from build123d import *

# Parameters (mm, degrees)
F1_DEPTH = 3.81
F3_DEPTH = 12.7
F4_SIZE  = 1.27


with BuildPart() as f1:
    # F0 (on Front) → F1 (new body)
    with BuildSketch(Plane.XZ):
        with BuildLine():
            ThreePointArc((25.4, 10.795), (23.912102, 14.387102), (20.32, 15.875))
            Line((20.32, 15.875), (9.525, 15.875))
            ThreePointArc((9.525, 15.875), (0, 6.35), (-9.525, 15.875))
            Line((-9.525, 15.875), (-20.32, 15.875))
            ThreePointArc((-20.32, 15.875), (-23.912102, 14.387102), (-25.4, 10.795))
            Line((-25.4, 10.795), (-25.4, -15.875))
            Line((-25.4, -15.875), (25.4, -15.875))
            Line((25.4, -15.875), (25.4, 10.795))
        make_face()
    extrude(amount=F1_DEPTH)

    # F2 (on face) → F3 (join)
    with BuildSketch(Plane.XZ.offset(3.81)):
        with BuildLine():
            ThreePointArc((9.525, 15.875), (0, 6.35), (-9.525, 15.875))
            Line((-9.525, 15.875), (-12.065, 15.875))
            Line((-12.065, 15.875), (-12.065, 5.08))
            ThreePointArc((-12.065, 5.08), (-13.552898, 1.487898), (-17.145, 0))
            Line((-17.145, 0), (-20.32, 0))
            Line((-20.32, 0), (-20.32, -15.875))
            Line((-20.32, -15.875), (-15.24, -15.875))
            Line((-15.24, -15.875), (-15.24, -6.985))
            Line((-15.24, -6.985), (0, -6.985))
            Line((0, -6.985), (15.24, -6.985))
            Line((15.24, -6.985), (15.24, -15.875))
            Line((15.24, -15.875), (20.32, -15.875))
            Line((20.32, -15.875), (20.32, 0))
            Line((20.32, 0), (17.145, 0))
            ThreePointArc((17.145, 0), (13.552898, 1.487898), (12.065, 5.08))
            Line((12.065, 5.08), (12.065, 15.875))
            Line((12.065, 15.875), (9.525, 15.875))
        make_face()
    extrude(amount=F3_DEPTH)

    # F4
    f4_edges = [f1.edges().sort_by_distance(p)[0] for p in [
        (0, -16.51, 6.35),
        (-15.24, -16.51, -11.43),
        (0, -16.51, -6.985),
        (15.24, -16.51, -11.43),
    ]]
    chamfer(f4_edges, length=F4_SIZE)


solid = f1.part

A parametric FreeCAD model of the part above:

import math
import FreeCAD as App
import Part
import Sketcher
from FreeCAD import Vector
Q = App.Units.Quantity


def edges_at(feature, points):
    """Names of the edges that pass closest to the given points."""
    edges = feature.Shape.Edges
    near = lambda p: min(range(len(edges)), key=lambda i: edges[i].distToShape(Part.Vertex(*p))[0])
    return sorted({f"Edge{near(p) + 1}" for p in points})

doc = App.newDocument("Part")
body = doc.addObject("PartDesign::Body", "Body")

sketch1 = doc.addObject("Sketcher::SketchObject", "Sketch")
body.addObject(sketch1)
sketch1.AttachmentSupport = (doc.XZ_Plane, [""])
sketch1.MapMode = "FlatFace"
sketch1.addGeometry(Part.ArcOfCircle(Part.Circle(Vector(20, 11, 0), Vector(0, 0, 1), 5), math.radians(0), math.radians(90)), False)
sketch1.addGeometry(Part.LineSegment(Vector(20, 16, 0), Vector(10, 16, 0)), False)
sketch1.addGeometry(Part.ArcOfCircle(Part.Circle(Vector(0, 16, 0), Vector(0, 0, 1), 10), math.radians(180), math.radians(360)), False)
sketch1.addGeometry(Part.LineSegment(Vector(-10, 16, 0), Vector(-20, 16, 0)), False)
sketch1.addGeometry(Part.ArcOfCircle(Part.Circle(Vector(-20, 11, 0), Vector(0, 0, 1), 5), math.radians(90), math.radians(180)), False)
sketch1.addGeometry(Part.LineSegment(Vector(-25, 11, 0), Vector(-25, -16, 0)), False)
sketch1.addGeometry(Part.LineSegment(Vector(-25, -16, 0), Vector(25, -16, 0)), False)
sketch1.addGeometry(Part.LineSegment(Vector(25, -16, 0), Vector(25, 11, 0)), False)
sketch1.addConstraint(Sketcher.Constraint("Tangent", 0, 2, 1, 1))
sketch1.addConstraint(Sketcher.Constraint("Coincident", 1, 2, 2, 2))
sketch1.addConstraint(Sketcher.Constraint("Coincident", 2, 1, 3, 1))
sketch1.addConstraint(Sketcher.Constraint("Tangent", 3, 2, 4, 1))
sketch1.addConstraint(Sketcher.Constraint("Tangent", 4, 2, 5, 1))
sketch1.addConstraint(Sketcher.Constraint("Coincident", 5, 2, 6, 1))
sketch1.addConstraint(Sketcher.Constraint("Coincident", 6, 2, 7, 1))
sketch1.addConstraint(Sketcher.Constraint("Tangent", 7, 2, 0, 1))
sketch1.addConstraint(Sketcher.Constraint("Horizontal", 1))
sketch1.addConstraint(Sketcher.Constraint("Horizontal", 3))
sketch1.addConstraint(Sketcher.Constraint("Vertical", 5))
sketch1.addConstraint(Sketcher.Constraint("Horizontal", 6))
sketch1.addConstraint(Sketcher.Constraint("Vertical", 7))
sketch1.addConstraint(Sketcher.Constraint("Equal", 0, 4))
sketch1.addConstraint(Sketcher.Constraint("Symmetric", 0, 3, 4, 3, -2))
sketch1.addConstraint(Sketcher.Constraint("PointOnObject", 2, 3, -2))
sketch1.addConstraint(Sketcher.Constraint("Horizontal", 2, 3, 0, 2))
sketch1.addConstraint(Sketcher.Constraint("Radius", 0, Q("0.2000001 in")))
sketch1.addConstraint(Sketcher.Constraint("DistanceX", 6, 1, 6, 2, Q("2 in")))
sketch1.addConstraint(Sketcher.Constraint("Radius", 2, Q("0.375 in")))
sketch1.addConstraint(Sketcher.Constraint("DistanceY", 5, 2, 5, 1, Q("1.05 in")))
sketch1.addConstraint(Sketcher.Constraint("DistanceY", -1, 1, 0, 3, Q("0.4249999 in")))
pad1 = doc.addObject("PartDesign::Pad", "Pad")
body.addObject(pad1)
pad1.Profile = sketch1
pad1.Length = Q("0.15 in")

sketch2 = doc.addObject("Sketcher::SketchObject", "Sketch001")
body.addObject(sketch2)
sketch2.AttachmentSupport = (doc.XZ_Plane, [""])
sketch2.MapMode = "FlatFace"
sketch2.AttachmentOffset = App.Placement(Vector(0, 0, 0.15 * 25.4), App.Rotation())
sketch2.addGeometry(Part.ArcOfCircle(Part.Circle(Vector(0, 15.9, 0), Vector(0, 0, 1), 9.5), math.radians(180), math.radians(360)), False)
sketch2.addGeometry(Part.LineSegment(Vector(-9.5, 15.9, 0), Vector(-12.1, 15.9, 0)), False)
sketch2.addGeometry(Part.LineSegment(Vector(-12.1, 15.9, 0), Vector(-12.1, 5.1, 0)), False)
sketch2.addGeometry(Part.ArcOfCircle(Part.Circle(Vector(-17.1, 5.1, 0), Vector(0, 0, 1), 5.1), math.radians(-90), math.radians(0)), False)
sketch2.addGeometry(Part.LineSegment(Vector(-17.1, 0, 0), Vector(-20.3, 0, 0)), False)
sketch2.addGeometry(Part.LineSegment(Vector(-20.3, 0, 0), Vector(-20.3, -15.9, 0)), False)
sketch2.addGeometry(Part.LineSegment(Vector(-20.3, -15.9, 0), Vector(-15.2, -15.9, 0)), False)
sketch2.addGeometry(Part.LineSegment(Vector(-15.2, -15.9, 0), Vector(-15.2, -7, 0)), False)
sketch2.addGeometry(Part.LineSegment(Vector(-15.2, -7, 0), Vector(15.2, -7, 0)), False)
sketch2.addGeometry(Part.LineSegment(Vector(15.2, -7, 0), Vector(15.2, -15.9, 0)), False)
sketch2.addGeometry(Part.LineSegment(Vector(15.2, -15.9, 0), Vector(20.3, -15.9, 0)), False)
sketch2.addGeometry(Part.LineSegment(Vector(20.3, -15.9, 0), Vector(20.3, 0, 0)), False)
sketch2.addGeometry(Part.LineSegment(Vector(20.3, 0, 0), Vector(17.1, 0, 0)), False)
sketch2.addGeometry(Part.ArcOfCircle(Part.Circle(Vector(17.1, 5.1, 0), Vector(0, 0, 1), 5.1), math.radians(-180), math.radians(-90)), False)
sketch2.addGeometry(Part.LineSegment(Vector(12.1, 5.1, 0), Vector(12.1, 15.9, 0)), False)
sketch2.addGeometry(Part.LineSegment(Vector(12.1, 15.9, 0), Vector(9.5, 15.9, 0)), False)
sketch2.addConstraint(Sketcher.Constraint("Coincident", 0, 1, 1, 1))
sketch2.addConstraint(Sketcher.Constraint("Coincident", 1, 2, 2, 1))
sketch2.addConstraint(Sketcher.Constraint("Tangent", 2, 2, 3, 2))
sketch2.addConstraint(Sketcher.Constraint("Tangent", 3, 1, 4, 1))
sketch2.addConstraint(Sketcher.Constraint("Coincident", 4, 2, 5, 1))
sketch2.addConstraint(Sketcher.Constraint("Coincident", 5, 2, 6, 1))
sketch2.addConstraint(Sketcher.Constraint("Coincident", 6, 2, 7, 1))
sketch2.addConstraint(Sketcher.Constraint("Coincident", 7, 2, 8, 1))
sketch2.addConstraint(Sketcher.Constraint("Coincident", 8, 2, 9, 1))
sketch2.addConstraint(Sketcher.Constraint("Coincident", 9, 2, 10, 1))
sketch2.addConstraint(Sketcher.Constraint("Coincident", 10, 2, 11, 1))
sketch2.addConstraint(Sketcher.Constraint("Coincident", 11, 2, 12, 1))
sketch2.addConstraint(Sketcher.Constraint("Tangent", 12, 2, 13, 2))
sketch2.addConstraint(Sketcher.Constraint("Tangent", 13, 1, 14, 1))
sketch2.addConstraint(Sketcher.Constraint("Coincident", 14, 2, 15, 1))
sketch2.addConstraint(Sketcher.Constraint("Coincident", 15, 2, 0, 2))
sketch2.addConstraint(Sketcher.Constraint("Horizontal", 1))
sketch2.addConstraint(Sketcher.Constraint("Vertical", 2))
sketch2.addConstraint(Sketcher.Constraint("Horizontal", 4))
sketch2.addConstraint(Sketcher.Constraint("Vertical", 5))
sketch2.addConstraint(Sketcher.Constraint("Horizontal", 6))
sketch2.addConstraint(Sketcher.Constraint("Vertical", 7))
sketch2.addConstraint(Sketcher.Constraint("Horizontal", 8))
sketch2.addConstraint(Sketcher.Constraint("Vertical", 9))
sketch2.addConstraint(Sketcher.Constraint("Horizontal", 10))
sketch2.addConstraint(Sketcher.Constraint("Vertical", 11))
sketch2.addConstraint(Sketcher.Constraint("Horizontal", 12))
sketch2.addConstraint(Sketcher.Constraint("Vertical", 14))
sketch2.addConstraint(Sketcher.Constraint("Horizontal", 15))
sketch2.addConstraint(Sketcher.Constraint("Equal", 3, 13))
sketch2.addConstraint(Sketcher.Constraint("Symmetric", 4, 2, 11, 2, -1, 1))
sketch2.addConstraint(Sketcher.Constraint("Symmetric", 3, 3, 13, 3, -2))
sketch2.addConstraint(Sketcher.Constraint("Symmetric", 6, 2, 9, 2, -2))
sketch2.addConstraint(Sketcher.Constraint("Symmetric", 0, 1, 15, 2, -2))
sketch2.addConstraint(Sketcher.Constraint("Radius", 3, Q("0.2000001 in")))
sketch2.addConstraint(Sketcher.Constraint("DistanceX", 1, 2, 1, 1, Q("0.1 in")))
sketch2.addConstraint(Sketcher.Constraint("DistanceX", 6, 1, 6, 2, Q("0.2 in")))
sketch2.addConstraint(Sketcher.Constraint("DistanceX", 8, 1, 8, 2, Q("1.2 in")))
sketch2.addConstraint(Sketcher.Constraint("Radius", 0, Q("0.375 in")))
sketch2.addConstraint(Sketcher.Constraint("DistanceY", 7, 1, 7, 2, Q("0.35 in")))
sketch2.addConstraint(Sketcher.Constraint("DistanceY", 8, 2, 0, 3, Q("0.9 in")))
sketch2.addConstraint(Sketcher.Constraint("DistanceY", 2, 2, 2, 1, Q("0.425 in")))
sketch2.addConstraint(Sketcher.Constraint("DistanceY", 5, 2, 5, 1, Q("0.625 in")))
pad2 = doc.addObject("PartDesign::Pad", "Pad001")
body.addObject(pad2)
pad2.Profile = sketch2
pad2.Length = Q("0.5 in")
doc.recompute()

chamfer = doc.addObject("PartDesign::Chamfer", "Chamfer")
body.addObject(chamfer)
chamfer.Base = (pad2, edges_at(pad2, [
    (0, -16.51, 6.35),
    (-15.24, -16.51, -11.43),
    (0, -16.51, -6.985),
    (15.24, -16.51, -11.43),
]))
chamfer.Size = Q("0.05 in")

doc.recompute()
